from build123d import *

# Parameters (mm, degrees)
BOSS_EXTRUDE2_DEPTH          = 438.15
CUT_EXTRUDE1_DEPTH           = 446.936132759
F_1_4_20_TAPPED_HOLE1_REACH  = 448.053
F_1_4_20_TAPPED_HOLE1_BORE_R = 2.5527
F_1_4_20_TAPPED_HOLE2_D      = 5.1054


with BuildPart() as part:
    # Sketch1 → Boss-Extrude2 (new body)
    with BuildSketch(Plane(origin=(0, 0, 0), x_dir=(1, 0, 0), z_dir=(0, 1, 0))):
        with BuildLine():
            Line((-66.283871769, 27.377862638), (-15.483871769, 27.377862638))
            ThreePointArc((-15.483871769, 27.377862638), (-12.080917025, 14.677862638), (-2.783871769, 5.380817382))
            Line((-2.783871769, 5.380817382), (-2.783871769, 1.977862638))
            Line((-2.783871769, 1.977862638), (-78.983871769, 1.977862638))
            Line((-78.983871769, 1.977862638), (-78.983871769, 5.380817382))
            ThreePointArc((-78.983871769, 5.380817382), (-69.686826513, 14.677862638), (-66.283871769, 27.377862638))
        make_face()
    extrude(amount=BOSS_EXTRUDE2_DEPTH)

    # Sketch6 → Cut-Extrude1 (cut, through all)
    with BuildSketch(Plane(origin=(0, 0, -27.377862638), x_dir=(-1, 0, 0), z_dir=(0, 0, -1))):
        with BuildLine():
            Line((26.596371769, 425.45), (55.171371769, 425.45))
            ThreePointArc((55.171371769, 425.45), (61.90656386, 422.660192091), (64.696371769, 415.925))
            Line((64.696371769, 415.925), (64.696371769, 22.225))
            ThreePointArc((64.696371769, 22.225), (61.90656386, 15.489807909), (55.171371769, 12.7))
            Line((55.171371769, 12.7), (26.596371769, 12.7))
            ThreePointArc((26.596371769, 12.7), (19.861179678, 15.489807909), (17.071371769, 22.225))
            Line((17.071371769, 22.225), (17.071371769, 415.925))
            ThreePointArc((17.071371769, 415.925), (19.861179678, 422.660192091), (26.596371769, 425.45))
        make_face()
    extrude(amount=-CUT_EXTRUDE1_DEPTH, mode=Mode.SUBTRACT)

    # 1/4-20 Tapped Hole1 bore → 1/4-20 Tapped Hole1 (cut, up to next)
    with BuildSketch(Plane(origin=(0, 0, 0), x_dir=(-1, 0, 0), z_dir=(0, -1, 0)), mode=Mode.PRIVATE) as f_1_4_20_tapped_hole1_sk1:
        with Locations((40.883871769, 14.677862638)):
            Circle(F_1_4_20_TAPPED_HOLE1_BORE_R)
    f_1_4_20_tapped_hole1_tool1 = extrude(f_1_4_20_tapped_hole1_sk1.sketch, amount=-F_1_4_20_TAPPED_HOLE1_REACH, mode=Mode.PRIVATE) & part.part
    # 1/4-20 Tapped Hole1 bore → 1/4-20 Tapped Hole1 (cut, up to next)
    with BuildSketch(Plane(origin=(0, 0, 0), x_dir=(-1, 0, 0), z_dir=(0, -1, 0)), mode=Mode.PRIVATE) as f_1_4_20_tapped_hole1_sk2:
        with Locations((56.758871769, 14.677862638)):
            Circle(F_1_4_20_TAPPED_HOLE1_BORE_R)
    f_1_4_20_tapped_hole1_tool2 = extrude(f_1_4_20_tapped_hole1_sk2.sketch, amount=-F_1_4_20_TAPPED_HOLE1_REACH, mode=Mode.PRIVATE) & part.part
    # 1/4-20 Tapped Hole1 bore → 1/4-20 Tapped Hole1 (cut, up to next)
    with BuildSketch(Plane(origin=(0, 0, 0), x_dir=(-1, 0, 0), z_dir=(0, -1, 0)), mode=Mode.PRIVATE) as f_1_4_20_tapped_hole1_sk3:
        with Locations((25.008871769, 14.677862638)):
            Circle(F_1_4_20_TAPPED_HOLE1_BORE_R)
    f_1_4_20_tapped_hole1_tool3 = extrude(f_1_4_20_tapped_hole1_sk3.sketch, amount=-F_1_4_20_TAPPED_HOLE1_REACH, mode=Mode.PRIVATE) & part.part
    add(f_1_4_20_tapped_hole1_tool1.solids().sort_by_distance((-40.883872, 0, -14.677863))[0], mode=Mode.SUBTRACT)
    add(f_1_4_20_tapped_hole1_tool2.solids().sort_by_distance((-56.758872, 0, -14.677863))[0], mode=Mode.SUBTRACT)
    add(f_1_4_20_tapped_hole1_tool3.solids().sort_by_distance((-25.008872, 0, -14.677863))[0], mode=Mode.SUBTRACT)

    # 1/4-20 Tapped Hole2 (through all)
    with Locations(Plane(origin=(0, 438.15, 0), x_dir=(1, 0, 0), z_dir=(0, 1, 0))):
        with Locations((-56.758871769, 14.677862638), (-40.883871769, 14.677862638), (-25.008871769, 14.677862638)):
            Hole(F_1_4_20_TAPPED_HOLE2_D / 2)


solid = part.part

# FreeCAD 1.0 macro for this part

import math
import FreeCAD as App
import Part
import Sketcher

V = App.Vector
Q = App.Units.Quantity

doc = App.newDocument("Part")
body = doc.addObject("PartDesign::Body", "Body")

sketch1 = body.newObject("Sketcher::SketchObject", "Sketch")
sketch1.AttachmentSupport = (doc.getObject("XZ_Plane"), [""])
sketch1.MapMode = "FlatFace"
sketch1.addGeometry(Part.LineSegment(V(-15.5, -27.4, 0), V(-66.3, -27.4, 0)), False)
sketch1.addGeometry(Part.ArcOfCircle(Part.Circle(V(-91.7, -27.4, 0), V(0, 0, 1), 25.4), math.radians(0), math.radians(60)), False)
sketch1.addGeometry(Part.LineSegment(V(-79, -5.4, 0), V(-79, -2, 0)), False)
sketch1.addGeometry(Part.LineSegment(V(-79, -2, 0), V(-2.8, -2, 0)), False)
sketch1.addGeometry(Part.LineSegment(V(-2.8, -2, 0), V(-2.8, -5.4, 0)), False)
sketch1.addGeometry(Part.ArcOfCircle(Part.Circle(V(9.9, -27.4, 0), V(0, 0, 1), 25.4), math.radians(120), math.radians(180)), False)
sketch1.addConstraint(Sketcher.Constraint("Coincident", 0, 2, 1, 1))
sketch1.addConstraint(Sketcher.Constraint("Coincident", 1, 2, 2, 1))
sketch1.addConstraint(Sketcher.Constraint("Coincident", 2, 2, 3, 1))
sketch1.addConstraint(Sketcher.Constraint("Coincident", 3, 2, 4, 1))
sketch1.addConstraint(Sketcher.Constraint("Coincident", 4, 2, 5, 1))
sketch1.addConstraint(Sketcher.Constraint("Coincident", 5, 2, 0, 1))
sketch1.addConstraint(Sketcher.Constraint("Horizontal", 0))
sketch1.addConstraint(Sketcher.Constraint("Vertical", 2))
sketch1.addConstraint(Sketcher.Constraint("Horizontal", 3))
sketch1.addConstraint(Sketcher.Constraint("Vertical", 4))
sketch1.addConstraint(Sketcher.Constraint("Equal", 1, 5))
sketch1.addConstraint(Sketcher.Constraint("Horizontal", 1, 3, 5, 3))
sketch1.addConstraint(Sketcher.Constraint("Horizontal", 5, 3, 0, 2))
sketch1.addConstraint(Sketcher.Constraint("Horizontal", 1, 2, 4, 2))
sketch1.addConstraint(Sketcher.Constraint("Radius", 1, Q("1 in")))
sketch1.addConstraint(Sketcher.Constraint("DistanceX", 0, 2, 0, 1, Q("2 in")))
sketch1.addConstraint(Sketcher.Constraint("DistanceX", 3, 1, 3, 2, Q("3 in")))
sketch1.addConstraint(Sketcher.Constraint("DistanceY", 1, 3, 2, 2, Q("1 in")))
sketch1.addConstraint(Sketcher.Constraint("DistanceX", 1, 3, -1, 1, Q("91.683872 mm")))
sketch1.addConstraint(Sketcher.Constraint("DistanceY", 1, 3, -1, 1, Q("27.377863 mm")))
pad1 = body.newObject("PartDesign::Pad", "Pad")
pad1.Profile = sketch1
pad1.Length = Q("17.25 in")
pad1.Reversed = True

sketch2 = body.newObject("Sketcher::SketchObject", "Sketch001")
sketch2.AttachmentSupport = (doc.getObject("XY_Plane"), [""])
sketch2.MapMode = "FlatFace"
sketch2.AttachmentOffset = App.Placement(V(0, 0, -27.377863), App.Rotation())
sketch2.addGeometry(Part.LineSegment(V(-55, 425, 0), V(-27, 425, 0)), False)
sketch2.addGeometry(Part.ArcOfCircle(Part.Circle(V(-27, 416, 0), V(0, 0, 1), 10), math.radians(0), math.radians(90)), False)
sketch2.addGeometry(Part.LineSegment(V(-17, 416, 0), V(-17, 22, 0)), False)
sketch2.addGeometry(Part.ArcOfCircle(Part.Circle(V(-27, 22, 0), V(0, 0, 1), 10), math.radians(-90), math.radians(0)), False)
sketch2.addGeometry(Part.LineSegment(V(-27, 13, 0), V(-55, 13, 0)), False)
sketch2.addGeometry(Part.ArcOfCircle(Part.Circle(V(-55, 22, 0), V(0, 0, 1), 10), math.radians(180), math.radians(270)), False)
sketch2.addGeometry(Part.LineSegment(V(-65, 22, 0), V(-65, 416, 0)), False)
sketch2.addGeometry(Part.ArcOfCircle(Part.Circle(V(-55, 416, 0), V(0, 0, 1), 10), math.radians(90), math.radians(180)), False)
sketch2.addConstraint(Sketcher.Constraint("Tangent", 0, 2, 1, 2))
sketch2.addConstraint(Sketcher.Constraint("Tangent", 1, 1, 2, 1))
sketch2.addConstraint(Sketcher.Constraint("Tangent", 2, 2, 3, 2))
sketch2.addConstraint(Sketcher.Constraint("Tangent", 3, 1, 4, 1))
sketch2.addConstraint(Sketcher.Constraint("Tangent", 4, 2, 5, 2))
sketch2.addConstraint(Sketcher.Constraint("Tangent", 5, 1, 6, 1))
sketch2.addConstraint(Sketcher.Constraint("Tangent", 6, 2, 7, 2))
sketch2.addConstraint(Sketcher.Constraint("Tangent", 7, 1, 0, 1))
sketch2.addConstraint(Sketcher.Constraint("Horizontal", 0))
sketch2.addConstraint(Sketcher.Constraint("Vertical", 2))
sketch2.addConstraint(Sketcher.Constraint("Horizontal", 4))
sketch2.addConstraint(Sketcher.Constraint("Vertical", 6))
sketch2.addConstraint(Sketcher.Constraint("Equal", 1, 3))
sketch2.addConstraint(Sketcher.Constraint("Equal", 3, 5))
sketch2.addConstraint(Sketcher.Constraint("Equal", 5, 7))
sketch2.addConstraint(Sketcher.Constraint("DistanceY", 2, 2, 2, 1, Q("15.5 in")))
sketch2.addConstraint(Sketcher.Constraint("Radius", 1, Q("0.375 in")))
sketch2.addConstraint(Sketcher.Constraint("DistanceY", -1, 1, 3, 1, Q("0.5 in")))
sketch2.addConstraint(Sketcher.Constraint("DistanceX", 7, 3, 1, 1, Q("1.5 in")))
sketch2.addConstraint(Sketcher.Constraint("DistanceX", 1, 3, -1, 1, Q("26.596372 mm")))
pocket1 = body.newObject("PartDesign::Pocket", "Pocket")
pocket1.Profile = sketch2
pocket1.Type = "ThroughAll"
pocket1.Reversed = True

sketch3 = body.newObject("Sketcher::SketchObject", "Sketch002")
sketch3.AttachmentSupport = (doc.getObject("XZ_Plane"), [""])
sketch3.MapMode = "FlatFace"
sketch3.addGeometry(Part.Circle(V(-40.9, -14.7, 0), V(0, 0, 1), 2.6), False)
sketch3.addConstraint(Sketcher.Constraint("Diameter", 0, Q("0.201 in")))
sketch3.addConstraint(Sketcher.Constraint("DistanceX", 0, 3, -1, 1, Q("40.883872 mm")))
sketch3.addConstraint(Sketcher.Constraint("DistanceY", 0, 3, -1, 1, Q("14.677863 mm")))
pocket2 = body.newObject("PartDesign::Pocket", "Pocket001")
pocket2.Profile = sketch3
pocket2.Type = "UpToFirst"

sketch4 = body.newObject("Sketcher::SketchObject", "Sketch003")
sketch4.AttachmentSupport = (doc.getObject("XZ_Plane"), [""])
sketch4.MapMode = "FlatFace"
sketch4.addGeometry(Part.Circle(V(-56.8, -14.7, 0), V(0, 0, 1), 2.6), False)
sketch4.addConstraint(Sketcher.Constraint("Diameter", 0, Q("0.201 in")))
sketch4.addConstraint(Sketcher.Constraint("DistanceX", 0, 3, -1, 1, Q("56.758872 mm")))
sketch4.addConstraint(Sketcher.Constraint("DistanceY", 0, 3, -1, 1, Q("14.677863 mm")))
pocket3 = body.newObject("PartDesign::Pocket", "Pocket002")
pocket3.Profile = sketch4
pocket3.Type = "UpToFirst"

sketch5 = body.newObject("Sketcher::SketchObject", "Sketch004")
sketch5.AttachmentSupport = (doc.getObject("XZ_Plane"), [""])
sketch5.MapMode = "FlatFace"
sketch5.addGeometry(Part.Circle(V(-25, -14.7, 0), V(0, 0, 1), 2.6), False)
sketch5.addConstraint(Sketcher.Constraint("Diameter", 0, Q("0.201 in")))
sketch5.addConstraint(Sketcher.Constraint("DistanceX", 0, 3, -1, 1, Q("25.008872 mm")))
sketch5.addConstraint(Sketcher.Constraint("DistanceY", 0, 3, -1, 1, Q("14.677863 mm")))
pocket4 = body.newObject("PartDesign::Pocket", "Pocket003")
pocket4.Profile = sketch5
pocket4.Type = "UpToFirst"

sketch6 = body.newObject("Sketcher::SketchObject", "Sketch005")
sketch6.AttachmentSupport = (doc.getObject("XZ_Plane"), [""])
sketch6.MapMode = "FlatFace"
sketch6.AttachmentOffset = App.Placement(V(0, 0, -17.25 * 25.4), App.Rotation())
sketch6.addGeometry(Part.Circle(V(-56.8, -14.7, 0), V(0, 0, 1), 2.6), False)
sketch6.addGeometry(Part.Circle(V(-40.9, -14.7, 0), V(0, 0, 1), 2.6), False)
sketch6.addGeometry(Part.Circle(V(-25, -14.7, 0), V(0, 0, 1), 2.6), False)
sketch6.addConstraint(Sketcher.Constraint("Equal", 0, 1))
sketch6.addConstraint(Sketcher.Constraint("Equal", 1, 2))
sketch6.addConstraint(Sketcher.Constraint("Horizontal", 0, 3, 1, 3))
sketch6.addConstraint(Sketcher.Constraint("Horizontal", 1, 3, 2, 3))
sketch6.addConstraint(Sketcher.Constraint("Diameter", 0, Q("0.201 in")))
sketch6.addConstraint(Sketcher.Constraint("DistanceX", 0, 3, 2, 3, Q("1.25 in")))
sketch6.addConstraint(Sketcher.Constraint("DistanceX", 0, 3, 1, 3, Q("0.625 in")))
sketch6.addConstraint(Sketcher.Constraint("DistanceX", 0, 3, -1, 1, Q("56.758872 mm")))
sketch6.addConstraint(Sketcher.Constraint("DistanceY", 0, 3, -1, 1, Q("14.677863 mm")))
doc.recompute()
hole = body.newObject("PartDesign::Hole", "Hole")
hole.Profile = sketch6
hole.ThreadType = "None"
hole.Diameter = Q("0.201 in")
hole.DepthType = "ThroughAll"
hole.Reversed = True

doc.recompute()
